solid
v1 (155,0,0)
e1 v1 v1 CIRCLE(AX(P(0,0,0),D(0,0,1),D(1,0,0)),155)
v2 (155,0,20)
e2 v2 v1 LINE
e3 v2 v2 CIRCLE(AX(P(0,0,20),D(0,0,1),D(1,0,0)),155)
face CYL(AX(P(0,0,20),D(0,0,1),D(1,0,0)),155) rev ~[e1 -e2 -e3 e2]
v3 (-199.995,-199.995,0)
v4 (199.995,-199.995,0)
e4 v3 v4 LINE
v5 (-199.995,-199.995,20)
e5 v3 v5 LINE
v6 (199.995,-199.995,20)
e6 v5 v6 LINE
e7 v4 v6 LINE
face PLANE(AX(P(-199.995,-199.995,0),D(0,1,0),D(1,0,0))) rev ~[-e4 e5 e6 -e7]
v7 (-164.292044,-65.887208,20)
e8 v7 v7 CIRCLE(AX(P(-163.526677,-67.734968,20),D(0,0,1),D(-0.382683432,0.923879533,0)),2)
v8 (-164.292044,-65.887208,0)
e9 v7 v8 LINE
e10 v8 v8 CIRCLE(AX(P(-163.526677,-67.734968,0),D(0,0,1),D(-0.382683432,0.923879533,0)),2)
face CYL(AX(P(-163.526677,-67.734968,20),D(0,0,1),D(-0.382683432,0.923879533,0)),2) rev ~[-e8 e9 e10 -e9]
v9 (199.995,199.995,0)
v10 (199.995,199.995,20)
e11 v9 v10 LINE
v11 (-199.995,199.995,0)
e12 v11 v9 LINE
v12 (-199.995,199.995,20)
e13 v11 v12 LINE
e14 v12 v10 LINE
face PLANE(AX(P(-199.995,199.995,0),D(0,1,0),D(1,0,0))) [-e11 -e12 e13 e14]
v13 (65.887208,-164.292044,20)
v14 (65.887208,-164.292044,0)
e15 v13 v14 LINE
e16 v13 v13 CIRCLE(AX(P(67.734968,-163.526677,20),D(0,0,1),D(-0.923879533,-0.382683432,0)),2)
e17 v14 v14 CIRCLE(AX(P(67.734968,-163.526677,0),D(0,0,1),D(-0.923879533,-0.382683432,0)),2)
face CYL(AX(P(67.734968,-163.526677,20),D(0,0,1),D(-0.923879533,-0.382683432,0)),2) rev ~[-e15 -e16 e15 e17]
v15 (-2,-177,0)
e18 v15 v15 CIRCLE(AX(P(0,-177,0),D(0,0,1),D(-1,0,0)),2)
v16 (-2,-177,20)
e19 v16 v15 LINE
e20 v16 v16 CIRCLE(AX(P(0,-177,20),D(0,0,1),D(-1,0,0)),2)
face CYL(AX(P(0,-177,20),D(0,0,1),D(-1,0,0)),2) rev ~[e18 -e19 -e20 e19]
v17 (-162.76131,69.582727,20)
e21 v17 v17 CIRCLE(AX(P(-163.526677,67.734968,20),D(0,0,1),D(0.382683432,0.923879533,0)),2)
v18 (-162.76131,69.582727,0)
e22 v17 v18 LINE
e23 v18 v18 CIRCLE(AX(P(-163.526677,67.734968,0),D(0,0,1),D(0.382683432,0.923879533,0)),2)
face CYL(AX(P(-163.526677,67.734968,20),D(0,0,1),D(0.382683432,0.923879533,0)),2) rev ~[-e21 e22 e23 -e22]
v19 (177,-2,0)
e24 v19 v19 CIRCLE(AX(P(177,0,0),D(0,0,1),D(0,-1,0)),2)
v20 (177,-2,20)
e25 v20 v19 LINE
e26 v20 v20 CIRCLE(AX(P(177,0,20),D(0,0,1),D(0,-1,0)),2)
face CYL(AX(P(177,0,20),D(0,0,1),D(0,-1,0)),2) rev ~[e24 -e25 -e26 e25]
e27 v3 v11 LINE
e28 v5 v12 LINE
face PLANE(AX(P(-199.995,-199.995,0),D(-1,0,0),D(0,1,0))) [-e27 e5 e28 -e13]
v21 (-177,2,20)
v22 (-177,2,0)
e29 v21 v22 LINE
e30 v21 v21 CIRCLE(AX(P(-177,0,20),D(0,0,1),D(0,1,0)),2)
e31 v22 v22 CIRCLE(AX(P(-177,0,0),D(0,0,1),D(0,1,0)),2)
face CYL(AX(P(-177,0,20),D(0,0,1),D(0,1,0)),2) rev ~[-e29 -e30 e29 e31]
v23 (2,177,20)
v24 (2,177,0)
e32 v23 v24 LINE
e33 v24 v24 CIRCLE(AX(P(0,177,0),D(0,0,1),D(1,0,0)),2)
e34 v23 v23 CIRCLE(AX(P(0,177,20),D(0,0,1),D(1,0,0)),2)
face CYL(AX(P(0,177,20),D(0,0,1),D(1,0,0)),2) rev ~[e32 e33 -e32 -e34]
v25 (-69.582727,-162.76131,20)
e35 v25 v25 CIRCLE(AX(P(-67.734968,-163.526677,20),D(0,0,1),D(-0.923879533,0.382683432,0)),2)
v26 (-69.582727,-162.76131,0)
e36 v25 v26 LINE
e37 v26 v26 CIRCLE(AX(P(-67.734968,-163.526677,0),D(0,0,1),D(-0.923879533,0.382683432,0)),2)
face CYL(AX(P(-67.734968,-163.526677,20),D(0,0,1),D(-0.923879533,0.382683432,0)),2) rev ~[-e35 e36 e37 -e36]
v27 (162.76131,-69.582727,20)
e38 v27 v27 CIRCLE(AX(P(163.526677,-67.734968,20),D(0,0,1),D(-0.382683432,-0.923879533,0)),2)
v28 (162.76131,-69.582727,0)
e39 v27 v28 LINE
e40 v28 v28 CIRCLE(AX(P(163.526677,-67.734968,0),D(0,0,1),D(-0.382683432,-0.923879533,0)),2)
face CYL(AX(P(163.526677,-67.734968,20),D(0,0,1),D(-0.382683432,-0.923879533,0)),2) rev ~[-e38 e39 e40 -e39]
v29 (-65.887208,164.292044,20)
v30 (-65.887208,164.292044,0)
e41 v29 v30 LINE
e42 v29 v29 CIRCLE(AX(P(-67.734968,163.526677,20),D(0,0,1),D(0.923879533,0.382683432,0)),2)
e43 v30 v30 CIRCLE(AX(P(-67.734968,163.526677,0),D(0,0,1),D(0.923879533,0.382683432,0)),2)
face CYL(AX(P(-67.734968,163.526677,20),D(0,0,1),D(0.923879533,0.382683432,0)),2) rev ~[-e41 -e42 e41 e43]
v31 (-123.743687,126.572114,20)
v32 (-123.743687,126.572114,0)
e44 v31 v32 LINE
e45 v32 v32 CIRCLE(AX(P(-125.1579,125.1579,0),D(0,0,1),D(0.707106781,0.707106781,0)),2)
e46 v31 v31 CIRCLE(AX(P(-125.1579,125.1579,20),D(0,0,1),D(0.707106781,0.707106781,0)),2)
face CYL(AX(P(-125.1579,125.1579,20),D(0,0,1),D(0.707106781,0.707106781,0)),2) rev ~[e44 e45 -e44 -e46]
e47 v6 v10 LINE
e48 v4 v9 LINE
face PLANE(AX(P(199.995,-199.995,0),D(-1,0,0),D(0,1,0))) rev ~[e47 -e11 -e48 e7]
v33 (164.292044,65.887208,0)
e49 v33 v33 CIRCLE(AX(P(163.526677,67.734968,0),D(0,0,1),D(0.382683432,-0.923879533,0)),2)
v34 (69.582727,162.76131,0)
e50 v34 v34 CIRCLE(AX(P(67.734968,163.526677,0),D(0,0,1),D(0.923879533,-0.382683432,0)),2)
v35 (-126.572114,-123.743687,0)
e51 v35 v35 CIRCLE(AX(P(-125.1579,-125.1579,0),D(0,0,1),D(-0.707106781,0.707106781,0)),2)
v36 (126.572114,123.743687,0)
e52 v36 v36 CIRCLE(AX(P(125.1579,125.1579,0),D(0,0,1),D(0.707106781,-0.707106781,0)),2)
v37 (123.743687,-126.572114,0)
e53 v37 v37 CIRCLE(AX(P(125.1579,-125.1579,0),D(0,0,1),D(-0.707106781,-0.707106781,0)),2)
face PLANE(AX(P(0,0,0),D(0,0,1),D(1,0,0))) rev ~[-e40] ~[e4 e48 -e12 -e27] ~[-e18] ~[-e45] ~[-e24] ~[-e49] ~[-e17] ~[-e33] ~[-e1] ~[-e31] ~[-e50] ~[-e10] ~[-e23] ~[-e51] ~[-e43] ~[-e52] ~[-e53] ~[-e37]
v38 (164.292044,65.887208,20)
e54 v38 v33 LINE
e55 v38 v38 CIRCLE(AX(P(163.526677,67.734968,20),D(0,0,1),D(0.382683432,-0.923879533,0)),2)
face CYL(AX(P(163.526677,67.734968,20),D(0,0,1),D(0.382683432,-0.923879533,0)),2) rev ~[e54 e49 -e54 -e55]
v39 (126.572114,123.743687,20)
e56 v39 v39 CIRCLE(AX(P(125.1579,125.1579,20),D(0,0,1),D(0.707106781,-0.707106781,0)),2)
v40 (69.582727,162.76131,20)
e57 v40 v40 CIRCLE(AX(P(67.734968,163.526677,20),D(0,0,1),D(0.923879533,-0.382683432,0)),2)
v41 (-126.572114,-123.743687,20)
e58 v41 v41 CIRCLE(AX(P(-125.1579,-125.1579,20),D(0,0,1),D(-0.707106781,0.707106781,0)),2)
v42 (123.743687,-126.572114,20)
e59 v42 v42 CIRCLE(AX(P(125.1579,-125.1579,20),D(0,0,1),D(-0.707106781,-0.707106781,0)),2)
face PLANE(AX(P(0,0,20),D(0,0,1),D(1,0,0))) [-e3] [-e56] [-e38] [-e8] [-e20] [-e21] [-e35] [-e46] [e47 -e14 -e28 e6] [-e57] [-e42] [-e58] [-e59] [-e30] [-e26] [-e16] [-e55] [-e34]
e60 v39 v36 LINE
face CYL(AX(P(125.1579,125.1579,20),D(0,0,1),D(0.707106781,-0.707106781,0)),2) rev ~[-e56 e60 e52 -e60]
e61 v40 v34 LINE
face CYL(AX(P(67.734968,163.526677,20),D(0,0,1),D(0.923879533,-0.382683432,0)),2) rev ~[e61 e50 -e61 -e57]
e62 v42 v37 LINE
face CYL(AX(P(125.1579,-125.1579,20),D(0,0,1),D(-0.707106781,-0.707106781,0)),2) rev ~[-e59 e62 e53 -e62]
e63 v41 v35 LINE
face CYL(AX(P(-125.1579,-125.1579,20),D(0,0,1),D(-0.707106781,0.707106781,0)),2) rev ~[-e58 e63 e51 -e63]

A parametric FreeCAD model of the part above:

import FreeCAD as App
import Part
import Sketcher

V = App.Vector
Q = App.Units.Quantity

doc = App.newDocument("Part")
params = doc.addObject("Spreadsheet::Sheet", "Params")
for row, (alias, value) in enumerate([
    ("sketch1_width", "399.99 mm"),
    ("pad1_length", "20 mm"),
    ("sketch2_diameter", "310 mm"),
    ("sketch3_diameter", "4 mm"),
], start=1):
    params.set(f"A{row}", alias)
    params.set(f"B{row}", "=" + value)
    params.setAlias(f"B{row}", alias)

body = doc.addObject("PartDesign::Body", "Body")

sketch1 = doc.addObject("Sketcher::SketchObject", "Sketch")
body.addObject(sketch1)
sketch1.AttachmentSupport = (doc.XY_Plane, [""])
sketch1.MapMode = "FlatFace"
sketch1.addGeometry(Part.LineSegment(V(-200, 200, 0), V(-200, -200, 0)), False)
sketch1.addGeometry(Part.LineSegment(V(-200, -200, 0), V(200, -200, 0)), False)
sketch1.addGeometry(Part.LineSegment(V(200, -200, 0), V(200, 200, 0)), False)
sketch1.addGeometry(Part.LineSegment(V(200, 200, 0), V(-200, 200, 0)), False)
sketch1.addConstraint(Sketcher.Constraint("Coincident", 0, 2, 1, 1))
sketch1.addConstraint(Sketcher.Constraint("Coincident", 1, 2, 2, 1))
sketch1.addConstraint(Sketcher.Constraint("Coincident", 2, 2, 3, 1))
sketch1.addConstraint(Sketcher.Constraint("Coincident", 3, 2, 0, 1))
sketch1.addConstraint(Sketcher.Constraint("Vertical", 0))
sketch1.addConstraint(Sketcher.Constraint("Horizontal", 1))
sketch1.addConstraint(Sketcher.Constraint("Vertical", 2))
sketch1.addConstraint(Sketcher.Constraint("Horizontal", 3))
sketch1.addConstraint(Sketcher.Constraint("Symmetric", 0, 2, 2, 2, -1, 1))
sketch1.addConstraint(Sketcher.Constraint("Equal", 3, 0))
sketch1.addConstraint(Sketcher.Constraint("DistanceX", 1, 1, 1, 2, Q("399.99 mm")))
sketch1.setExpression("Constraints[10]", "Params.sketch1_width")
pad1 = doc.addObject("PartDesign::Pad", "Pad")
body.addObject(pad1)
pad1.Profile = sketch1
pad1.setExpression("Length", "Params.pad1_length")

sketch2 = doc.addObject("Sketcher::SketchObject", "Sketch001")
body.addObject(sketch2)
sketch2.AttachmentSupport = (doc.XY_Plane, [""])
sketch2.MapMode = "FlatFace"
sketch2.AttachmentOffset = App.Placement(V(0, 0, 20), App.Rotation())
sketch2.addGeometry(Part.Circle(V(0, 0, 0), V(0, 0, 1), 155), False)
sketch2.addConstraint(Sketcher.Constraint("Coincident", 0, 3, -1, 1))
sketch2.addConstraint(Sketcher.Constraint("Diameter", 0, Q("310 mm")))
sketch2.setExpression("Constraints[1]", "Params.sketch2_diameter")
pocket1 = doc.addObject("PartDesign::Pocket", "Pocket")
body.addObject(pocket1)
pocket1.Profile = sketch2
pocket1.Type = "ThroughAll"

sketch3 = doc.addObject("Sketcher::SketchObject", "Sketch002")
body.addObject(sketch3)
sketch3.AttachmentSupport = (doc.XY_Plane, [""])
sketch3.MapMode = "FlatFace"
sketch3.AttachmentOffset = App.Placement(V(0, 0, 20), App.Rotation())
sketch3.addGeometry(Part.Circle(V(0, 177, 0), V(0, 0, 1), 2), False)
sketch3.addConstraint(Sketcher.Constraint("PointOnObject", 0, 3, -2))
sketch3.addConstraint(Sketcher.Constraint("Diameter", 0, Q("4 mm")))
sketch3.addConstraint(Sketcher.Constraint("DistanceY", -1, 1, 0, 3, Q("177 mm")))
sketch3.setExpression("Constraints[1]", "Params.sketch3_diameter")
pocket2 = doc.addObject("PartDesign::Pocket", "Pocket001")
body.addObject(pocket2)
pocket2.Profile = sketch3
pocket2.Type = "ThroughAll"
doc.recompute()

polarpattern = doc.addObject("PartDesign::PolarPattern", "PolarPattern")
body.addObject(polarpattern)
polarpattern.Originals = [pocket2]
polarpattern.Axis = (doc.Z_Axis, [""])
polarpattern.Angle = 360
polarpattern.Occurrences = 16
body.Tip = polarpattern

doc.recompute()
